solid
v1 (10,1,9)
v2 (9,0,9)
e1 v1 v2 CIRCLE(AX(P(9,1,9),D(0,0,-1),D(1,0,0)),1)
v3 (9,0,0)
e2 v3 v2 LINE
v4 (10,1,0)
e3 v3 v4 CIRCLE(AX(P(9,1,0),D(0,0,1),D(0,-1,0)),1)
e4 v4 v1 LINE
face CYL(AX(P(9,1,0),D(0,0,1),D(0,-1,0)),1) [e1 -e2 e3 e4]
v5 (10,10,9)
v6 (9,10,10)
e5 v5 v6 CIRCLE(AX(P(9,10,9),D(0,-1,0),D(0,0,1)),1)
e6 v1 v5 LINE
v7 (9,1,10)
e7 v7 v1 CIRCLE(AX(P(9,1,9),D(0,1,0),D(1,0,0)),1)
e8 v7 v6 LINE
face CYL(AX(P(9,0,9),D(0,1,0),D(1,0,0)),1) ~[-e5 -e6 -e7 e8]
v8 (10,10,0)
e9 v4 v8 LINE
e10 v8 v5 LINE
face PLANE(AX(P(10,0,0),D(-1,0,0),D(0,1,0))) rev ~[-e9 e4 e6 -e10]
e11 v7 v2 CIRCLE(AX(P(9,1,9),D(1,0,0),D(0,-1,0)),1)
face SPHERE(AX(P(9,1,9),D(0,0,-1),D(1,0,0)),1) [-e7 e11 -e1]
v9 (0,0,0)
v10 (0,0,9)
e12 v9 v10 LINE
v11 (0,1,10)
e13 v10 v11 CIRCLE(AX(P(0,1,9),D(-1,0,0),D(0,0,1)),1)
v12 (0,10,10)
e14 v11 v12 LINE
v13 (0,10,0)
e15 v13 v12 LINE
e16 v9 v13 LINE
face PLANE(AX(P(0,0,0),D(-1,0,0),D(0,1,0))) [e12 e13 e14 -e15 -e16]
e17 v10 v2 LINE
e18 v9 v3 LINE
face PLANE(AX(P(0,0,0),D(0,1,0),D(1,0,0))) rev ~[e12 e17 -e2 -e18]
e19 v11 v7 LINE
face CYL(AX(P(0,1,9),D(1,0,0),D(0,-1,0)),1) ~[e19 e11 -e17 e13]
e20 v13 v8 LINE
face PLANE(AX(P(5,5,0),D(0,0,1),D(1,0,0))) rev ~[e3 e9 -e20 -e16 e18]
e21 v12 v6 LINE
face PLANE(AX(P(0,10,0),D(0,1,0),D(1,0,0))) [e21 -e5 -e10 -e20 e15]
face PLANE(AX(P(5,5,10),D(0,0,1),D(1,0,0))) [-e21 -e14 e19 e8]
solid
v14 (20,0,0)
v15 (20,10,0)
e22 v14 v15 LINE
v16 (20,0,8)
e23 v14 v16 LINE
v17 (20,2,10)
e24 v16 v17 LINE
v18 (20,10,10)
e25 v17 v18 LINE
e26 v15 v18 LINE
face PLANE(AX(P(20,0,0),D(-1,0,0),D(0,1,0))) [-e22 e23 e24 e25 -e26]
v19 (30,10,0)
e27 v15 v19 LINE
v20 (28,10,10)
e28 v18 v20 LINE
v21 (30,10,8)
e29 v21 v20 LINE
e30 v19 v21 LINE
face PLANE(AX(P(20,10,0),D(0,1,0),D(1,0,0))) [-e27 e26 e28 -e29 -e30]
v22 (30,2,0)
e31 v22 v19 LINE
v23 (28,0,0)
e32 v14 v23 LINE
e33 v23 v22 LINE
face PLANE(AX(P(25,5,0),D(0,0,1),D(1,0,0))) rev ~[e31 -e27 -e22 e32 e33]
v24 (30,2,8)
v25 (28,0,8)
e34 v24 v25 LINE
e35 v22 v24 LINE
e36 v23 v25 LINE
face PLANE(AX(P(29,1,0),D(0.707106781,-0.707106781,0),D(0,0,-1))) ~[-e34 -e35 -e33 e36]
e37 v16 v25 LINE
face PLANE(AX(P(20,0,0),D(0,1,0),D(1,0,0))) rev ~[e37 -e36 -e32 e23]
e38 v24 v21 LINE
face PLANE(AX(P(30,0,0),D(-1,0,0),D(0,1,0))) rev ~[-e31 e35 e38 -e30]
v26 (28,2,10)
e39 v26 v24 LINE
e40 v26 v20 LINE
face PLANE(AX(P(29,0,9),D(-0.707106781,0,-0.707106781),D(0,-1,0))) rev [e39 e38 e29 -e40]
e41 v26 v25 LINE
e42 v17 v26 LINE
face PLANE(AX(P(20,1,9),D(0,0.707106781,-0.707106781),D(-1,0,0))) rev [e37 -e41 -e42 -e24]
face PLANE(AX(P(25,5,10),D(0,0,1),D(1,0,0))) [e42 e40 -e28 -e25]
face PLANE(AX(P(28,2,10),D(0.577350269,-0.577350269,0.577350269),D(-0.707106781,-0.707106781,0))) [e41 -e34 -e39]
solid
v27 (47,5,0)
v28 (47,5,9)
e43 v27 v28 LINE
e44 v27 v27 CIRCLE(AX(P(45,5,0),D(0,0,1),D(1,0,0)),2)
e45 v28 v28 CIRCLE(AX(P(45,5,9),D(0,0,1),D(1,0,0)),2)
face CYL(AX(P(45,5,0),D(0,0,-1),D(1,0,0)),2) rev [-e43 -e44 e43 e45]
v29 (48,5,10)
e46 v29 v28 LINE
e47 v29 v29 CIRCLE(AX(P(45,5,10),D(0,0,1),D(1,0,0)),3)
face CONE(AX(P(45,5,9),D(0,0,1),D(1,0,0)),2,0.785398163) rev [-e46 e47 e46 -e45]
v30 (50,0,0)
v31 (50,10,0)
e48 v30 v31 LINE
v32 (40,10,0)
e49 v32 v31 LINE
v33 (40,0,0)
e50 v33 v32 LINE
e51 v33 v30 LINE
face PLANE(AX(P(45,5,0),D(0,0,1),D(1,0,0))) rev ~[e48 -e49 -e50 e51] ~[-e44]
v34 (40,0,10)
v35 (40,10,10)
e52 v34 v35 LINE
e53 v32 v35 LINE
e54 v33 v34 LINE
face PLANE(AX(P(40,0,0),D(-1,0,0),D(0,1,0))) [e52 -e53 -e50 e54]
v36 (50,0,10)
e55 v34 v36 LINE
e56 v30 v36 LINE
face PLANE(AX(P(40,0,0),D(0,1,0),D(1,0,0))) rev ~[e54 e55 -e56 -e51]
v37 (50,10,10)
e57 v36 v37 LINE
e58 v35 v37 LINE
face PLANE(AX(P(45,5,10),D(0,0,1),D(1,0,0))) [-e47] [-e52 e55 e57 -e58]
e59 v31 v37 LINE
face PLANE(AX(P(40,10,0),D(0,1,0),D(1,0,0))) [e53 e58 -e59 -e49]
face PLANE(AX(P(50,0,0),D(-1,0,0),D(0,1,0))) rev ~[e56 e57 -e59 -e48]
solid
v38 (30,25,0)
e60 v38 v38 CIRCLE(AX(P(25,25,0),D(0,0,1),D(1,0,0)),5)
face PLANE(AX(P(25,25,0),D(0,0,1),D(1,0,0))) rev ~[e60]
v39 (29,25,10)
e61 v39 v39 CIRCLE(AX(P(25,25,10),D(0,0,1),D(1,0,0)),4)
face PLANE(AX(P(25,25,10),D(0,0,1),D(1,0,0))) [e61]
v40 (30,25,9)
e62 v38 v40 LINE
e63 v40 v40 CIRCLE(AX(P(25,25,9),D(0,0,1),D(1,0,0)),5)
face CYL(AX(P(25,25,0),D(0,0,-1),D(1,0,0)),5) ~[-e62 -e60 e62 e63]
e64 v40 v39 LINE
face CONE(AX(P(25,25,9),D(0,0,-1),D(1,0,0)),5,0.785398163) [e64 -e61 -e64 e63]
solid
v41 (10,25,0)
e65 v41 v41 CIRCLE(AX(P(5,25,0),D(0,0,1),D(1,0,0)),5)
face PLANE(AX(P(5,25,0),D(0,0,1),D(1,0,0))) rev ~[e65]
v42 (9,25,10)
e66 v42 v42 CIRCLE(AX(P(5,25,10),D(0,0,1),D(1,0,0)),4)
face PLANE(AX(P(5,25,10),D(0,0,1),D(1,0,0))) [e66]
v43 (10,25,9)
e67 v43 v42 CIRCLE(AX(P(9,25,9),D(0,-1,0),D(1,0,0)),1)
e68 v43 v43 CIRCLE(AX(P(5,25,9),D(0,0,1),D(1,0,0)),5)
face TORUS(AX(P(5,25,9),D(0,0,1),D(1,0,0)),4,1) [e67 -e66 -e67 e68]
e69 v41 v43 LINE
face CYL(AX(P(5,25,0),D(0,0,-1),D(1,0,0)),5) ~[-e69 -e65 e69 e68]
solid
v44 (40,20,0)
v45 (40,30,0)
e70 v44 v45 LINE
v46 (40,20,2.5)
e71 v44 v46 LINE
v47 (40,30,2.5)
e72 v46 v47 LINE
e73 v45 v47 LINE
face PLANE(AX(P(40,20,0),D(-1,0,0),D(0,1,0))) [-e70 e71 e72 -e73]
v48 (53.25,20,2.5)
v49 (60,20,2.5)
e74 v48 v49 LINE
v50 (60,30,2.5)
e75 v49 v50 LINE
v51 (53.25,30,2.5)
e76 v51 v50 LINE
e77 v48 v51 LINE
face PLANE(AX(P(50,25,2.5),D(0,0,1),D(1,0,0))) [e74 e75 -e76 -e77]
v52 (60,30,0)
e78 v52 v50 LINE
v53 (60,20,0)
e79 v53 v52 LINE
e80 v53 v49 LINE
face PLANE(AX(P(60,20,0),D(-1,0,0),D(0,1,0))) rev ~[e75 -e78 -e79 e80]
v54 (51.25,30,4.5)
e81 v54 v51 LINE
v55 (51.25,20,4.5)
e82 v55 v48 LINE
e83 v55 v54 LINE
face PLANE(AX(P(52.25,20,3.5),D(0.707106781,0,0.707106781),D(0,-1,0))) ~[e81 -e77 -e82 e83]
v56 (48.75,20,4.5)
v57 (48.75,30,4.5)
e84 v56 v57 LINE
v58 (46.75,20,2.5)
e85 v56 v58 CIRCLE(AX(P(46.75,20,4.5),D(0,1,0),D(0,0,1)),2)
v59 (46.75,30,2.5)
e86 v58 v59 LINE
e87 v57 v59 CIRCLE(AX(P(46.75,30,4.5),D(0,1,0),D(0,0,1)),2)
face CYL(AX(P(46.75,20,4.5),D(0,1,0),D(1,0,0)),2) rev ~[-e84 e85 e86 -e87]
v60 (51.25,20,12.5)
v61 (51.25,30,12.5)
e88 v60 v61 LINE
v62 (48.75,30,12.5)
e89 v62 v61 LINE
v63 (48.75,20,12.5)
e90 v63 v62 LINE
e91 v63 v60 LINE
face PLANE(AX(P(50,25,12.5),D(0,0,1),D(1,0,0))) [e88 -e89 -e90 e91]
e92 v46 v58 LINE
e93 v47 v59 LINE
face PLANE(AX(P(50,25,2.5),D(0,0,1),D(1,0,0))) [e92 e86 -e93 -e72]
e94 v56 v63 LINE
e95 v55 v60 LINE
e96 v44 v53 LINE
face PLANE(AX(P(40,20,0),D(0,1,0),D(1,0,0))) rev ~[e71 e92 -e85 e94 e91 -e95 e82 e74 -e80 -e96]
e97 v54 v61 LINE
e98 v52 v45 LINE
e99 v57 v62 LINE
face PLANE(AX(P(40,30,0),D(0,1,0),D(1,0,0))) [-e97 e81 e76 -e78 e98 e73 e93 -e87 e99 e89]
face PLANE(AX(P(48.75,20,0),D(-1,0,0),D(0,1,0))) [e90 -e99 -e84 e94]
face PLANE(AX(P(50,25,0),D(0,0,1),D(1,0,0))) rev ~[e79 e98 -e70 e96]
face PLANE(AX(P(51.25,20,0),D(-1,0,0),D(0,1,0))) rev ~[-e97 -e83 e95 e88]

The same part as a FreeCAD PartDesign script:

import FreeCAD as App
import Part
import Sketcher

V = App.Vector


def edges_at(feature, points):
    """Names of the edges that pass closest to the given points."""
    edges = feature.Shape.Edges
    near = lambda p: min(range(len(edges)), key=lambda i: edges[i].distToShape(Part.Vertex(*p))[0])
    return sorted({f"Edge{near(p) + 1}" for p in points})


def add_polygon(sketch, points):
    """Adds a closed chain of lines whose ends are joined by coincident constraints."""
    first, n = sketch.GeometryCount, len(points)
    for a, b in zip(points, points[1:] + points[:1]):
        sketch.addGeometry(Part.LineSegment(App.Vector(*a, 0), App.Vector(*b, 0)), False)
    for i in range(n):
        sketch.addConstraint(Sketcher.Constraint("Coincident", first + i, 2, first + (i + 1) % n, 1))

doc = App.newDocument("Part")
body = doc.addObject("PartDesign::Body", "Body")

# Sketch on XY plane
sketch1 = body.newObject("Sketcher::SketchObject", "Sketch")
sketch1.AttachmentSupport = (doc.getObject("XY_Plane"), [""])
sketch1.MapMode = "FlatFace"
add_polygon(sketch1, [(0, 10), (0, 0), (10, 0), (10, 10)])  # lines 0-3
sketch1.addConstraint(Sketcher.Constraint("Vertical", 0))
sketch1.addConstraint(Sketcher.Constraint("Horizontal", 1))
sketch1.addConstraint(Sketcher.Constraint("Vertical", 2))
sketch1.addConstraint(Sketcher.Constraint("Horizontal", 3))
sketch1.addConstraint(Sketcher.Constraint("Coincident", 0, 2, -1, 1))
sketch1.addConstraint(Sketcher.Constraint("Equal", 3, 0))
sketch1.addConstraint(Sketcher.Constraint("DistanceX", 1, 1, 1, 2, 10.0))
pad1 = body.newObject("PartDesign::Pad", "Pad")
pad1.Profile = sketch1
pad1.Length = 10
doc.recompute()

fillet = body.newObject("PartDesign::Fillet", "Fillet")
fillet.Base = (pad1, edges_at(pad1, [(10, 0, 5), (10, 5, 10), (5, 0, 10)]))
fillet.Radius = 1
body2 = doc.addObject("PartDesign::Body", "Body001")

# Sketch on XY plane
sketch2 = body2.newObject("Sketcher::SketchObject", "Sketch001")
sketch2.AttachmentSupport = (doc.getObject("XY_Plane001"), [""])
sketch2.MapMode = "FlatFace"
add_polygon(sketch2, [(20, 10), (20, 0), (30, 0), (30, 10)])  # lines 0-3
sketch2.addConstraint(Sketcher.Constraint("Vertical", 0))
sketch2.addConstraint(Sketcher.Constraint("Horizontal", 1))
sketch2.addConstraint(Sketcher.Constraint("Vertical", 2))
sketch2.addConstraint(Sketcher.Constraint("Horizontal", 3))
sketch2.addConstraint(Sketcher.Constraint("PointOnObject", 0, 2, -1))
sketch2.addConstraint(Sketcher.Constraint("Equal", 3, 0))
sketch2.addConstraint(Sketcher.Constraint("DistanceX", 1, 1, 1, 2, 10.0))
sketch2.addConstraint(Sketcher.Constraint("DistanceX", -1, 1, 0, 2, 20.0))
pad2 = body2.newObject("PartDesign::Pad", "Pad001")
pad2.Profile = sketch2
pad2.Length = 10
doc.recompute()

chamfer = body2.newObject("PartDesign::Chamfer", "Chamfer")
chamfer.Base = (pad2, edges_at(pad2, [(30, 0, 5), (30, 5, 10), (25, 0, 10)]))
chamfer.Size = 2
body3 = doc.addObject("PartDesign::Body", "Body002")

# Sketch on XY plane
sketch3 = body3.newObject("Sketcher::SketchObject", "Sketch002")
sketch3.AttachmentSupport = (doc.getObject("XY_Plane002"), [""])
sketch3.MapMode = "FlatFace"
sketch3.addGeometry(Part.Circle(V(45, 5, 0), V(0, 0, 1), 2), False)
sketch3.addConstraint(Sketcher.Constraint("Diameter", 0, 4.0))
sketch3.addConstraint(Sketcher.Constraint("DistanceX", -1, 1, 0, 3, 45.0))
sketch3.addConstraint(Sketcher.Constraint("DistanceY", -1, 1, 0, 3, 5.0))
pad3 = body3.newObject("PartDesign::Pad", "Pad002")
pad3.Profile = sketch3
pad3.Length = 10
body4 = doc.addObject("PartDesign::Body", "Body003")

# Sketch on XY plane
sketch4 = body4.newObject("Sketcher::SketchObject", "Sketch003")
sketch4.AttachmentSupport = (doc.getObject("XY_Plane003"), [""])
sketch4.MapMode = "FlatFace"
add_polygon(sketch4, [(40, 10), (40, 0), (50, 0), (50, 10)])  # lines 0-3
sketch4.addConstraint(Sketcher.Constraint("Vertical", 0))
sketch4.addConstraint(Sketcher.Constraint("Horizontal", 1))
sketch4.addConstraint(Sketcher.Constraint("Vertical", 2))
sketch4.addConstraint(Sketcher.Constraint("Horizontal", 3))
sketch4.addConstraint(Sketcher.Constraint("PointOnObject", 0, 2, -1))
sketch4.addConstraint(Sketcher.Constraint("Equal", 3, 0))
sketch4.addConstraint(Sketcher.Constraint("DistanceX", 1, 1, 1, 2, 10.0))
sketch4.addConstraint(Sketcher.Constraint("DistanceX", -1, 1, 0, 2, 40.0))
pad4 = body4.newObject("PartDesign::Pad", "Pad003")
pad4.Profile = sketch4
pad4.Length = 10
doc.recompute()

boolean = body4.newObject("PartDesign::Boolean", "Boolean")
boolean.Type = "Cut"
boolean.addObjects([body3])
doc.recompute()

chamfer2 = body4.newObject("PartDesign::Chamfer", "Chamfer001")
chamfer2.Base = (boolean, edges_at(boolean, [(43, 5, 10)]))
chamfer2.Size = 1
body5 = doc.addObject("PartDesign::Body", "Body004")

# Sketch on XY plane
sketch5 = body5.newObject("Sketcher::SketchObject", "Sketch004")
sketch5.AttachmentSupport = (doc.getObject("XY_Plane004"), [""])
sketch5.MapMode = "FlatFace"
sketch5.addGeometry(Part.Circle(V(5, 25, 0), V(0, 0, 1), 5), False)
sketch5.addConstraint(Sketcher.Constraint("Diameter", 0, 10.0))
sketch5.addConstraint(Sketcher.Constraint("DistanceX", -1, 1, 0, 3, 5.0))
sketch5.addConstraint(Sketcher.Constraint("DistanceY", -1, 1, 0, 3, 25.0))
pad5 = body5.newObject("PartDesign::Pad", "Pad004")
pad5.Profile = sketch5
pad5.Length = 10
doc.recompute()

fillet2 = body5.newObject("PartDesign::Fillet", "Fillet001")
fillet2.Base = (pad5, edges_at(pad5, [(0, 25, 10)]))
fillet2.Radius = 1
body6 = doc.addObject("PartDesign::Body", "Body005")

# Sketch on XY plane
sketch6 = body6.newObject("Sketcher::SketchObject", "Sketch005")
sketch6.AttachmentSupport = (doc.getObject("XY_Plane005"), [""])
sketch6.MapMode = "FlatFace"
sketch6.addGeometry(Part.Circle(V(25, 25, 0), V(0, 0, 1), 5), False)
sketch6.addConstraint(Sketcher.Constraint("Diameter", 0, 10.0))
sketch6.addConstraint(Sketcher.Constraint("DistanceX", -1, 1, 0, 3, 25.0))
sketch6.addConstraint(Sketcher.Constraint("DistanceY", -1, 1, 0, 3, 25.0))
pad6 = body6.newObject("PartDesign::Pad", "Pad005")
pad6.Profile = sketch6
pad6.Length = 10
doc.recompute()

chamfer3 = body6.newObject("PartDesign::Chamfer", "Chamfer002")
chamfer3.Base = (pad6, edges_at(pad6, [(20, 25, 10)]))
chamfer3.Size = 1
body7 = doc.addObject("PartDesign::Body", "Body006")

# Sketch on XY plane
sketch7 = body7.newObject("Sketcher::SketchObject", "Sketch006")
sketch7.AttachmentSupport = (doc.getObject("XY_Plane006"), [""])
sketch7.MapMode = "FlatFace"
add_polygon(sketch7, [(40, 30), (40, 20), (60, 20), (60, 30)])  # lines 0-3
sketch7.addConstraint(Sketcher.Constraint("Vertical", 0))
sketch7.addConstraint(Sketcher.Constraint("Horizontal", 1))
sketch7.addConstraint(Sketcher.Constraint("Vertical", 2))
sketch7.addConstraint(Sketcher.Constraint("Horizontal", 3))
sketch7.addConstraint(Sketcher.Constraint("DistanceX", 1, 1, 1, 2, 20.0))
sketch7.addConstraint(Sketcher.Constraint("DistanceY", 0, 2, 0, 1, 10.0))
sketch7.addConstraint(Sketcher.Constraint("DistanceX", -1, 1, 0, 2, 40.0))
sketch7.addConstraint(Sketcher.Constraint("DistanceY", -1, 1, 0, 2, 20.0))
pad7 = body7.newObject("PartDesign::Pad", "Pad006")
pad7.Profile = sketch7
pad7.Length = 2.5
body8 = doc.addObject("PartDesign::Body", "Body007")

# Sketch on XY plane
sketch8 = body8.newObject("Sketcher::SketchObject", "Sketch007")
sketch8.AttachmentSupport = (doc.getObject("XY_Plane007"), [""])
sketch8.MapMode = "FlatFace"
add_polygon(sketch8, [(48.8, 30), (48.8, 20), (51.2, 20), (51.2, 30)])  # lines 0-3
sketch8.addConstraint(Sketcher.Constraint("Vertical", 0))
sketch8.addConstraint(Sketcher.Constraint("Horizontal", 1))
sketch8.addConstraint(Sketcher.Constraint("Vertical", 2))
sketch8.addConstraint(Sketcher.Constraint("Horizontal", 3))
sketch8.addConstraint(Sketcher.Constraint("DistanceY", 0, 2, 0, 1, 10.0))
sketch8.addConstraint(Sketcher.Constraint("DistanceX", 1, 1, 1, 2, 2.5))
sketch8.addConstraint(Sketcher.Constraint("DistanceY", -1, 1, 0, 2, 20.0))
sketch8.addConstraint(Sketcher.Constraint("DistanceX", -1, 1, 0, 2, 48.75))
pad8 = body8.newObject("PartDesign::Pad", "Pad007")
pad8.Profile = sketch8
pad8.Length = 12.5
doc.recompute()

boolean2 = body8.newObject("PartDesign::Boolean", "Boolean001")
boolean2.Type = "Fuse"
boolean2.addObjects([body7])
doc.recompute()

chamfer4 = body8.newObject("PartDesign::Chamfer", "Chamfer003")
chamfer4.Base = (boolean2, edges_at(boolean2, [(51.25, 25, 2.5)]))
chamfer4.Size = 2
doc.recompute()

fillet3 = body8.newObject("PartDesign::Fillet", "Fillet002")
fillet3.Base = (chamfer4, edges_at(chamfer4, [(48.75, 25, 2.5)]))
fillet3.Radius = 2

doc.recompute()
